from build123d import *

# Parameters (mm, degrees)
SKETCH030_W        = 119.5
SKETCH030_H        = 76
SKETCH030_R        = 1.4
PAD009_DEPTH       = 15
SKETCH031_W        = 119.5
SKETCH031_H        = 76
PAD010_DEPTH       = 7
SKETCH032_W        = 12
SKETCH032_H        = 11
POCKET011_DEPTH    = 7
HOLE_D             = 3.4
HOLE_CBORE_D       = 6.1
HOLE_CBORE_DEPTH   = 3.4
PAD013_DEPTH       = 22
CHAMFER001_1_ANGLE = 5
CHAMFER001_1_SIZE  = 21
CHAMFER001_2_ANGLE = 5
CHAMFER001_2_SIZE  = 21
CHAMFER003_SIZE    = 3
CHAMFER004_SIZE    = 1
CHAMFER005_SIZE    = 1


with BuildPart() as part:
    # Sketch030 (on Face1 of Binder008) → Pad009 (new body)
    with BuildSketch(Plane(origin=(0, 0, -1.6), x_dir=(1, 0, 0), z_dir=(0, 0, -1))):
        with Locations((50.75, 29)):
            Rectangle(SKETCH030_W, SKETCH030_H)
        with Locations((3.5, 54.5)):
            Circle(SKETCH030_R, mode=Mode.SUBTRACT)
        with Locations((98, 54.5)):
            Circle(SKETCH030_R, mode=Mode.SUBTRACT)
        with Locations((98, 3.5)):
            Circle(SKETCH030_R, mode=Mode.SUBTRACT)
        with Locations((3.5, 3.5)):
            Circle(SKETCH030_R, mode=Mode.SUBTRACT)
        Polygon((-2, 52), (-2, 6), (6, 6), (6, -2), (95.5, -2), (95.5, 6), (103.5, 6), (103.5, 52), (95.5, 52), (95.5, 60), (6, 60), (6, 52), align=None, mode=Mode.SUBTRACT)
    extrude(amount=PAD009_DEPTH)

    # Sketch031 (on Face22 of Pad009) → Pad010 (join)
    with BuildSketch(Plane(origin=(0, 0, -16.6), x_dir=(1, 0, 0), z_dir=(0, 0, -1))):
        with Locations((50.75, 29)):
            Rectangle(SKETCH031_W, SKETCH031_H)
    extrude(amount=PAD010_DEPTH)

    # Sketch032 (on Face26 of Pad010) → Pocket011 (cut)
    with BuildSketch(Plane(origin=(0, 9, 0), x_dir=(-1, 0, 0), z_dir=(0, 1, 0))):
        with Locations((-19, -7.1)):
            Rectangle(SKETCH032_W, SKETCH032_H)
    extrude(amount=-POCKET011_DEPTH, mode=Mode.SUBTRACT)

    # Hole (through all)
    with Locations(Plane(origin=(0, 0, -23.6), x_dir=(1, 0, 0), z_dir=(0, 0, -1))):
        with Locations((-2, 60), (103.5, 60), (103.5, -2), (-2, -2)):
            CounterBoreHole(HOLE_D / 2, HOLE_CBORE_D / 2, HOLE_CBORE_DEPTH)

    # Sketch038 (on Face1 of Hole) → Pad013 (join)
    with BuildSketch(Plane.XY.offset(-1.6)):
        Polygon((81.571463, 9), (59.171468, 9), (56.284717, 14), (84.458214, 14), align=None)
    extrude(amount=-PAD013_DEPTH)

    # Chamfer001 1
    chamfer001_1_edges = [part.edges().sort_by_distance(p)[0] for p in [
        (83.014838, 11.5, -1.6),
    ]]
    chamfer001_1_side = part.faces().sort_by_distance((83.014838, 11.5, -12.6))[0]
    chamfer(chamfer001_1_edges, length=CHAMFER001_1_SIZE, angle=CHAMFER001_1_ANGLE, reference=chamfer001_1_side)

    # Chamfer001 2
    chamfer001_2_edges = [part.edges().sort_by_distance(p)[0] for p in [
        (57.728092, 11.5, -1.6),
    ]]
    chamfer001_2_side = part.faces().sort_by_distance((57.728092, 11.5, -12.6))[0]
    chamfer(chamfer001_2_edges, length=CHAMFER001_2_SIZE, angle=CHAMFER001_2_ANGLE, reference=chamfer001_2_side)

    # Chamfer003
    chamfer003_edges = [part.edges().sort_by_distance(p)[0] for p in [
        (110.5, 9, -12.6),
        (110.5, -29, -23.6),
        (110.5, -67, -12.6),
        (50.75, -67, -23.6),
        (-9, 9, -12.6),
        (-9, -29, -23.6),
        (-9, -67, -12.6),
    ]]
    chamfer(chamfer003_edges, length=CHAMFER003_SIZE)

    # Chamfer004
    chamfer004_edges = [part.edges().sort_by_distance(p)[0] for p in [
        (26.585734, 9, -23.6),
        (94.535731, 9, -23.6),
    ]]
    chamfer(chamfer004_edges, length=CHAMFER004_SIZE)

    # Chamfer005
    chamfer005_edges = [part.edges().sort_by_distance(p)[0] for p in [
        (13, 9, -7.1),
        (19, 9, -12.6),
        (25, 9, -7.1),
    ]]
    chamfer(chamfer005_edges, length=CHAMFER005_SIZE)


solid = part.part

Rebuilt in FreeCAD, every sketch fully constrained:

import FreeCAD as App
import Part
import Sketcher
Q = App.Units.Quantity


def edges_at(feature, points):
    """Names of the edges that pass closest to the given points."""
    edges = feature.Shape.Edges
    near = lambda p: min(range(len(edges)), key=lambda i: edges[i].distToShape(Part.Vertex(*p))[0])
    return sorted({f"Edge{near(p) + 1}" for p in points})

doc = App.newDocument("Part")
body = doc.addObject("PartDesign::Body", "Body")

# Sketch on XY plane
sketch1 = body.newObject("Sketcher::SketchObject", "Sketch")
sketch1.AttachmentSupport = (doc.getObject("XY_Plane"), [""])
sketch1.MapMode = "FlatFace"
sketch1.AttachmentOffset = App.Placement(App.Vector(0, 0, -1.6), App.Rotation())
sketch1.addGeometry(Part.LineSegment(App.Vector(-9, -67, 0), App.Vector(-9, 9, 0)), False)
sketch1.addGeometry(Part.LineSegment(App.Vector(-9, 9, 0), App.Vector(110.5, 9, 0)), False)
sketch1.addGeometry(Part.LineSegment(App.Vector(110.5, 9, 0), App.Vector(110.5, -67, 0)), False)
sketch1.addGeometry(Part.LineSegment(App.Vector(110.5, -67, 0), App.Vector(-9, -67, 0)), False)
sketch1.addGeometry(Part.Circle(App.Vector(3.5, -3.5, 0), App.Vector(0, 0, 1), 1.4), False)
sketch1.addGeometry(Part.Circle(App.Vector(98, -3.5, 0), App.Vector(0, 0, 1), 1.4), False)
sketch1.addGeometry(Part.Circle(App.Vector(3.5, -54.5, 0), App.Vector(0, 0, 1), 1.4), False)
sketch1.addGeometry(Part.LineSegment(App.Vector(-2, -6, 0), App.Vector(-2, -52, 0)), False)
sketch1.addGeometry(Part.LineSegment(App.Vector(-2, -52, 0), App.Vector(6, -52, 0)), False)
sketch1.addGeometry(Part.LineSegment(App.Vector(6, -52, 0), App.Vector(6, -60, 0)), False)
sketch1.addGeometry(Part.LineSegment(App.Vector(6, -60, 0), App.Vector(95.5, -60, 0)), False)
sketch1.addGeometry(Part.LineSegment(App.Vector(95.5, -60, 0), App.Vector(95.5, -52, 0)), False)
sketch1.addGeometry(Part.LineSegment(App.Vector(95.5, -52, 0), App.Vector(103.5, -52, 0)), False)
sketch1.addGeometry(Part.LineSegment(App.Vector(103.5, -52, 0), App.Vector(103.5, -6, 0)), False)
sketch1.addGeometry(Part.LineSegment(App.Vector(103.5, -6, 0), App.Vector(95.5, -6, 0)), False)
sketch1.addGeometry(Part.LineSegment(App.Vector(95.5, -6, 0), App.Vector(95.5, 2, 0)), False)
sketch1.addGeometry(Part.LineSegment(App.Vector(95.5, 2, 0), App.Vector(6, 2, 0)), False)
sketch1.addGeometry(Part.LineSegment(App.Vector(6, 2, 0), App.Vector(6, -6, 0)), False)
sketch1.addGeometry(Part.LineSegment(App.Vector(6, -6, 0), App.Vector(-2, -6, 0)), False)
sketch1.addGeometry(Part.Circle(App.Vector(98, -54.5, 0), App.Vector(0, 0, 1), 1.4), False)
sketch1.addConstraint(Sketcher.Constraint("Coincident", 0, 2, 1, 1))
sketch1.addConstraint(Sketcher.Constraint("Coincident", 1, 2, 2, 1))
sketch1.addConstraint(Sketcher.Constraint("Coincident", 2, 2, 3, 1))
sketch1.addConstraint(Sketcher.Constraint("Coincident", 3, 2, 0, 1))
sketch1.addConstraint(Sketcher.Constraint("Coincident", 7, 2, 8, 1))
sketch1.addConstraint(Sketcher.Constraint("Coincident", 8, 2, 9, 1))
sketch1.addConstraint(Sketcher.Constraint("Coincident", 9, 2, 10, 1))
sketch1.addConstraint(Sketcher.Constraint("Coincident", 10, 2, 11, 1))
sketch1.addConstraint(Sketcher.Constraint("Coincident", 11, 2, 12, 1))
sketch1.addConstraint(Sketcher.Constraint("Coincident", 12, 2, 13, 1))
sketch1.addConstraint(Sketcher.Constraint("Coincident", 13, 2, 14, 1))
sketch1.addConstraint(Sketcher.Constraint("Coincident", 14, 2, 15, 1))
sketch1.addConstraint(Sketcher.Constraint("Coincident", 15, 2, 16, 1))
sketch1.addConstraint(Sketcher.Constraint("Coincident", 16, 2, 17, 1))
sketch1.addConstraint(Sketcher.Constraint("Coincident", 17, 2, 18, 1))
sketch1.addConstraint(Sketcher.Constraint("Coincident", 18, 2, 7, 1))
sketch1.addConstraint(Sketcher.Constraint("Vertical", 0))
sketch1.addConstraint(Sketcher.Constraint("Horizontal", 1))
sketch1.addConstraint(Sketcher.Constraint("Vertical", 2))
sketch1.addConstraint(Sketcher.Constraint("Horizontal", 3))
sketch1.addConstraint(Sketcher.Constraint("Vertical", 7))
sketch1.addConstraint(Sketcher.Constraint("Horizontal", 8))
sketch1.addConstraint(Sketcher.Constraint("Vertical", 9))
sketch1.addConstraint(Sketcher.Constraint("Horizontal", 10))
sketch1.addConstraint(Sketcher.Constraint("Vertical", 11))
sketch1.addConstraint(Sketcher.Constraint("Horizontal", 12))
sketch1.addConstraint(Sketcher.Constraint("Vertical", 13))
sketch1.addConstraint(Sketcher.Constraint("Horizontal", 14))
sketch1.addConstraint(Sketcher.Constraint("Vertical", 15))
sketch1.addConstraint(Sketcher.Constraint("Horizontal", 16))
sketch1.addConstraint(Sketcher.Constraint("Vertical", 17))
sketch1.addConstraint(Sketcher.Constraint("Horizontal", 18))
sketch1.addConstraint(Sketcher.Constraint("Equal", 4, 5))
sketch1.addConstraint(Sketcher.Constraint("Equal", 5, 6))
sketch1.addConstraint(Sketcher.Constraint("Equal", 6, 19))
sketch1.addConstraint(Sketcher.Constraint("Horizontal", 4, 3, 5, 3))
sketch1.addConstraint(Sketcher.Constraint("Horizontal", 6, 3, 19, 3))
sketch1.addConstraint(Sketcher.Constraint("Horizontal", 8, 2, 11, 2))
sketch1.addConstraint(Sketcher.Constraint("Horizontal", 14, 2, 17, 2))
sketch1.addConstraint(Sketcher.Constraint("Vertical", 4, 3, 6, 3))
sketch1.addConstraint(Sketcher.Constraint("Vertical", 5, 3, 19, 3))
sketch1.addConstraint(Sketcher.Constraint("Vertical", 11, 2, 14, 2))
sketch1.addConstraint(Sketcher.Constraint("Vertical", 9, 2, 16, 2))
sketch1.addConstraint(Sketcher.Constraint("Equal", 8, 12))
sketch1.addConstraint(Sketcher.Constraint("Equal", 18, 9))
sketch1.addConstraint(Sketcher.Constraint("Equal", 11, 15))
sketch1.addConstraint(Sketcher.Constraint("Diameter", 4, 2.8))
sketch1.addConstraint(Sketcher.Constraint("DistanceX", 8, 1, 8, 2, 8.0))
sketch1.addConstraint(Sketcher.Constraint("DistanceY", 0, 1, 0, 2, 76.0))
sketch1.addConstraint(Sketcher.Constraint("DistanceY", 7, 2, 7, 1, 46.0))
sketch1.addConstraint(Sketcher.Constraint("DistanceX", 1, 1, 1, 2, 119.5))
sketch1.addConstraint(Sketcher.Constraint("DistanceX", 10, 1, 10, 2, 89.5))
sketch1.addConstraint(Sketcher.Constraint("DistanceX", -1, 1, 5, 3, 98.0))
sketch1.addConstraint(Sketcher.Constraint("DistanceX", 0, 2, -1, 1, 9.0))
sketch1.addConstraint(Sketcher.Constraint("DistanceY", -1, 1, 0, 2, 9.0))
sketch1.addConstraint(Sketcher.Constraint("DistanceX", 7, 2, -1, 1, 2.0))
sketch1.addConstraint(Sketcher.Constraint("DistanceY", 7, 2, -1, 1, 52.0))
sketch1.addConstraint(Sketcher.Constraint("DistanceY", 6, 3, 4, 3, 51.0))
sketch1.addConstraint(Sketcher.Constraint("DistanceX", 4, 3, 1, 2, 107.0))
sketch1.addConstraint(Sketcher.Constraint("DistanceY", 4, 3, -1, 1, 3.5))
pad1 = body.newObject("PartDesign::Pad", "Pad")
pad1.Profile = sketch1
pad1.Length = 15
pad1.Reversed = True

# Sketch on XY plane
sketch2 = body.newObject("Sketcher::SketchObject", "Sketch001")
sketch2.AttachmentSupport = (doc.getObject("XY_Plane"), [""])
sketch2.MapMode = "FlatFace"
sketch2.AttachmentOffset = App.Placement(App.Vector(0, 0, -16.6), App.Rotation())
sketch2.addGeometry(Part.LineSegment(App.Vector(-9, -67, 0), App.Vector(-9, 9, 0)), False)
sketch2.addGeometry(Part.LineSegment(App.Vector(-9, 9, 0), App.Vector(110, 9, 0)), False)
sketch2.addGeometry(Part.LineSegment(App.Vector(110, 9, 0), App.Vector(110, -67, 0)), False)
sketch2.addGeometry(Part.LineSegment(App.Vector(110, -67, 0), App.Vector(-9, -67, 0)), False)
sketch2.addConstraint(Sketcher.Constraint("Coincident", 0, 2, 1, 1))
sketch2.addConstraint(Sketcher.Constraint("Coincident", 1, 2, 2, 1))
sketch2.addConstraint(Sketcher.Constraint("Coincident", 2, 2, 3, 1))
sketch2.addConstraint(Sketcher.Constraint("Coincident", 3, 2, 0, 1))
sketch2.addConstraint(Sketcher.Constraint("Vertical", 0))
sketch2.addConstraint(Sketcher.Constraint("Horizontal", 1))
sketch2.addConstraint(Sketcher.Constraint("Vertical", 2))
sketch2.addConstraint(Sketcher.Constraint("Horizontal", 3))
sketch2.addConstraint(Sketcher.Constraint("DistanceY", 0, 1, 0, 2, 76.0))
sketch2.addConstraint(Sketcher.Constraint("DistanceX", 1, 1, 1, 2, 119.5))
sketch2.addConstraint(Sketcher.Constraint("DistanceX", 0, 2, -1, 1, 9.0))
sketch2.addConstraint(Sketcher.Constraint("DistanceY", -1, 1, 0, 2, 9.0))
pad2 = body.newObject("PartDesign::Pad", "Pad001")
pad2.Profile = sketch2
pad2.Length = 7
pad2.Reversed = True

# Sketch on XZ plane
sketch3 = body.newObject("Sketcher::SketchObject", "Sketch002")
sketch3.AttachmentSupport = (doc.getObject("XZ_Plane"), [""])
sketch3.MapMode = "FlatFace"
sketch3.AttachmentOffset = App.Placement(App.Vector(0, 0, -9), App.Rotation())
sketch3.addGeometry(Part.LineSegment(App.Vector(25, -2, 0), App.Vector(25, -13, 0)), False)
sketch3.addGeometry(Part.LineSegment(App.Vector(25, -13, 0), App.Vector(13, -13, 0)), False)
sketch3.addGeometry(Part.LineSegment(App.Vector(13, -13, 0), App.Vector(13, -2, 0)), False)
sketch3.addGeometry(Part.LineSegment(App.Vector(13, -2, 0), App.Vector(25, -2, 0)), False)
sketch3.addConstraint(Sketcher.Constraint("Coincident", 0, 2, 1, 1))
sketch3.addConstraint(Sketcher.Constraint("Coincident", 1, 2, 2, 1))
sketch3.addConstraint(Sketcher.Constraint("Coincident", 2, 2, 3, 1))
sketch3.addConstraint(Sketcher.Constraint("Coincident", 3, 2, 0, 1))
sketch3.addConstraint(Sketcher.Constraint("Vertical", 0))
sketch3.addConstraint(Sketcher.Constraint("Horizontal", 1))
sketch3.addConstraint(Sketcher.Constraint("Vertical", 2))
sketch3.addConstraint(Sketcher.Constraint("Horizontal", 3))
sketch3.addConstraint(Sketcher.Constraint("DistanceX", 1, 2, 1, 1, 12.0))
sketch3.addConstraint(Sketcher.Constraint("DistanceY", 0, 2, 0, 1, 11.0))
sketch3.addConstraint(Sketcher.Constraint("DistanceX", -1, 1, 0, 2, 25.0))
sketch3.addConstraint(Sketcher.Constraint("DistanceY", 0, 2, -1, 1, 12.6))
pocket1 = body.newObject("PartDesign::Pocket", "Pocket")
pocket1.Profile = sketch3
pocket1.Length = 7
pocket1.Reversed = True

# Sketch on XY plane
sketch4 = body.newObject("Sketcher::SketchObject", "Sketch003")
sketch4.AttachmentSupport = (doc.getObject("XY_Plane"), [""])
sketch4.MapMode = "FlatFace"
sketch4.AttachmentOffset = App.Placement(App.Vector(0, 0, -23.6), App.Rotation())
sketch4.addGeometry(Part.Circle(App.Vector(-2, -60, 0), App.Vector(0, 0, 1), 1.7), False)
sketch4.addGeometry(Part.Circle(App.Vector(103.5, -60, 0), App.Vector(0, 0, 1), 1.7), False)
sketch4.addGeometry(Part.Circle(App.Vector(103.5, 2, 0), App.Vector(0, 0, 1), 1.7), False)
sketch4.addGeometry(Part.Circle(App.Vector(-2, 2, 0), App.Vector(0, 0, 1), 1.7), False)
sketch4.addConstraint(Sketcher.Constraint("Equal", 0, 1))
sketch4.addConstraint(Sketcher.Constraint("Equal", 1, 2))
sketch4.addConstraint(Sketcher.Constraint("Equal", 2, 3))
sketch4.addConstraint(Sketcher.Constraint("Horizontal", 0, 3, 1, 3))
sketch4.addConstraint(Sketcher.Constraint("Horizontal", 2, 3, 3, 3))
sketch4.addConstraint(Sketcher.Constraint("Vertical", 1, 3, 2, 3))
sketch4.addConstraint(Sketcher.Constraint("Vertical", 0, 3, 3, 3))
sketch4.addConstraint(Sketcher.Constraint("Diameter", 0, 3.4))
sketch4.addConstraint(Sketcher.Constraint("DistanceX", 0, 3, -1, 1, 2.0))
sketch4.addConstraint(Sketcher.Constraint("DistanceY", 0, 3, -1, 1, 60.0))
sketch4.addConstraint(Sketcher.Constraint("DistanceY", -1, 1, 2, 3, 2.0))
sketch4.addConstraint(Sketcher.Constraint("DistanceX", -1, 1, 1, 3, 103.5))
doc.recompute()
hole = body.newObject("PartDesign::Hole", "Hole")
hole.Profile = sketch4
hole.ThreadType = "None"
hole.Diameter = 3.4
hole.DepthType = "ThroughAll"
hole.HoleCutType = "Counterbore"
hole.HoleCutDiameter = 6.1
hole.HoleCutDepth = 3.4
hole.Reversed = True

# Sketch on XY plane
sketch5 = body.newObject("Sketcher::SketchObject", "Sketch004")
sketch5.AttachmentSupport = (doc.getObject("XY_Plane"), [""])
sketch5.MapMode = "FlatFace"
sketch5.AttachmentOffset = App.Placement(App.Vector(0, 0, -1.6), App.Rotation())
sketch5.addGeometry(Part.LineSegment(App.Vector(59, 9, 0), App.Vector(82, 9, 0)), False)
sketch5.addGeometry(Part.LineSegment(App.Vector(82, 9, 0), App.Vector(84, 14, 0)), False)
sketch5.addGeometry(Part.LineSegment(App.Vector(84, 14, 0), App.Vector(56, 14, 0)), False)
sketch5.addGeometry(Part.LineSegment(App.Vector(56, 14, 0), App.Vector(59, 9, 0)), False)
sketch5.addConstraint(Sketcher.Constraint("Coincident", 0, 2, 1, 1))
sketch5.addConstraint(Sketcher.Constraint("Coincident", 1, 2, 2, 1))
sketch5.addConstraint(Sketcher.Constraint("Coincident", 2, 2, 3, 1))
sketch5.addConstraint(Sketcher.Constraint("Coincident", 3, 2, 0, 1))
sketch5.addConstraint(Sketcher.Constraint("Horizontal", 0))
sketch5.addConstraint(Sketcher.Constraint("Horizontal", 2))
sketch5.addConstraint(Sketcher.Constraint("Equal", 1, 3))
sketch5.addConstraint(Sketcher.Constraint("Angle", 1, Q("60.000003 deg")))
sketch5.addConstraint(Sketcher.Constraint("DistanceY", -1, 1, 0, 2, 9.0))
sketch5.addConstraint(Sketcher.Constraint("DistanceY", -1, 1, 1, 2, 14.0))
sketch5.addConstraint(Sketcher.Constraint("DistanceX", 0, 1, 0, 2, 22.399995))
sketch5.addConstraint(Sketcher.Constraint("DistanceX", -1, 1, 0, 2, 81.571463))
pad3 = body.newObject("PartDesign::Pad", "Pad002")
pad3.Profile = sketch5
pad3.Length = 22
pad3.Reversed = True
doc.recompute()

chamfer = body.newObject("PartDesign::Chamfer", "Chamfer")
chamfer.Base = (pad3, edges_at(pad3, [(83.015, 11.5, -1.6)]))
chamfer.ChamferType = "Distance and Angle"
chamfer.Size = 21
chamfer.Angle = 5
doc.recompute()

chamfer2 = body.newObject("PartDesign::Chamfer", "Chamfer001")
chamfer2.Base = (chamfer, edges_at(chamfer, [(57.728, 11.5, -1.6)]))
chamfer2.ChamferType = "Distance and Angle"
chamfer2.Size = 21
chamfer2.Angle = 5
chamfer2.FlipDirection = True
doc.recompute()

chamfer3 = body.newObject("PartDesign::Chamfer", "Chamfer002")
chamfer3.Base = (chamfer2, edges_at(chamfer2, [
    (110.5, 9, -12.6),
    (110.5, -29, -23.6),
    (110.5, -67, -12.6),
    (50.75, -67, -23.6),
    (-9, 9, -12.6),
    (-9, -29, -23.6),
    (-9, -67, -12.6),
]))
chamfer3.Size = 3
doc.recompute()

chamfer4 = body.newObject("PartDesign::Chamfer", "Chamfer003")
chamfer4.Base = (chamfer3, edges_at(chamfer3, [(26.586, 9, -23.6), (94.536, 9, -23.6)]))
chamfer4.Size = 1
doc.recompute()

chamfer5 = body.newObject("PartDesign::Chamfer", "Chamfer004")
chamfer5.Base = (chamfer4, edges_at(chamfer4, [(13, 9, -7.1), (19, 9, -12.6), (25, 9, -7.1)]))
chamfer5.Size = 1

doc.recompute()
